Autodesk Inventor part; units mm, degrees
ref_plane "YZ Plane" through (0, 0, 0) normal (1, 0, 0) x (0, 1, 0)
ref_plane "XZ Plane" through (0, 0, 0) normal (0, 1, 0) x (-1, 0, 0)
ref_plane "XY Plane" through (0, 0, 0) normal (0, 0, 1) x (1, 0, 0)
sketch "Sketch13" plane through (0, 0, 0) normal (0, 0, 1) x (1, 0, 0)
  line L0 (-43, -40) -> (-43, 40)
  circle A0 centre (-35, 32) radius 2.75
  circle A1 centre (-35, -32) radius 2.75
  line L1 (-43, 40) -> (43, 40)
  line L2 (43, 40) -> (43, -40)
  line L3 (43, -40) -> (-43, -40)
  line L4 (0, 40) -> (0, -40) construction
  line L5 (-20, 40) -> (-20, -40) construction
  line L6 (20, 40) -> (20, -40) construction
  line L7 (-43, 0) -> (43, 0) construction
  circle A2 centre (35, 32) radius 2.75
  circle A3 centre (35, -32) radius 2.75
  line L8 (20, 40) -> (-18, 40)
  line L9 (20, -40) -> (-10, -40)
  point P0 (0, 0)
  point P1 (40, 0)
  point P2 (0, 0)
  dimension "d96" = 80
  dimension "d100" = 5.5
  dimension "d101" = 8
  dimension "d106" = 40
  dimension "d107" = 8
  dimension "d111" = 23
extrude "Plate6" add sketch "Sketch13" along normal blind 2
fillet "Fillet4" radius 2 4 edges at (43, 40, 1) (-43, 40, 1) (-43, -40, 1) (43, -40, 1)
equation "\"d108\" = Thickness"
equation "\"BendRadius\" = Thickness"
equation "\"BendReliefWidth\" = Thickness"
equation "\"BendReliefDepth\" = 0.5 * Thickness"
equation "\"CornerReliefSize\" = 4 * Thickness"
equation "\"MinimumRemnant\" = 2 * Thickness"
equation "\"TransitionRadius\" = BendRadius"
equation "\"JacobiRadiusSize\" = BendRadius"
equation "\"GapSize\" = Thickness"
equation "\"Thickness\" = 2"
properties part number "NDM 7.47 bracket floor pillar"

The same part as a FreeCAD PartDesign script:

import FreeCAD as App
import Part
import Sketcher
Q = App.Units.Quantity


def edges_at(feature, points):
    """Names of the edges that pass closest to the given points."""
    edges = feature.Shape.Edges
    near = lambda p: min(range(len(edges)), key=lambda i: edges[i].distToShape(Part.Vertex(*p))[0])
    return sorted({f"Edge{near(p) + 1}" for p in points})

doc = App.newDocument("Part")
body = doc.addObject("PartDesign::Body", "Body")

sketch1 = body.newObject("Sketcher::SketchObject", "Sketch")
sketch1.AttachmentSupport = (doc.getObject("XY_Plane"), [""])
sketch1.MapMode = "FlatFace"
sketch1.addGeometry(Part.LineSegment(App.Vector(-43, 40, 0), App.Vector(-43, -40, 0)), False)
sketch1.addGeometry(Part.LineSegment(App.Vector(-43, -40, 0), App.Vector(43, -40, 0)), False)
sketch1.addGeometry(Part.LineSegment(App.Vector(43, -40, 0), App.Vector(43, 40, 0)), False)
sketch1.addGeometry(Part.LineSegment(App.Vector(43, 40, 0), App.Vector(-43, 40, 0)), False)
sketch1.addGeometry(Part.Circle(App.Vector(-35, -32, 0), App.Vector(0, 0, 1), 2.8), False)
sketch1.addGeometry(Part.Circle(App.Vector(35, -32, 0), App.Vector(0, 0, 1), 2.8), False)
sketch1.addGeometry(Part.Circle(App.Vector(-35, 32, 0), App.Vector(0, 0, 1), 2.8), False)
sketch1.addGeometry(Part.Circle(App.Vector(35, 32, 0), App.Vector(0, 0, 1), 2.8), False)
sketch1.addConstraint(Sketcher.Constraint("Coincident", 0, 2, 1, 1))
sketch1.addConstraint(Sketcher.Constraint("Coincident", 1, 2, 2, 1))
sketch1.addConstraint(Sketcher.Constraint("Coincident", 2, 2, 3, 1))
sketch1.addConstraint(Sketcher.Constraint("Coincident", 3, 2, 0, 1))
sketch1.addConstraint(Sketcher.Constraint("Vertical", 0))
sketch1.addConstraint(Sketcher.Constraint("Horizontal", 1))
sketch1.addConstraint(Sketcher.Constraint("Vertical", 2))
sketch1.addConstraint(Sketcher.Constraint("Horizontal", 3))
sketch1.addConstraint(Sketcher.Constraint("Equal", 4, 5))
sketch1.addConstraint(Sketcher.Constraint("Equal", 5, 6))
sketch1.addConstraint(Sketcher.Constraint("Equal", 6, 7))
sketch1.addConstraint(Sketcher.Constraint("Symmetric", 5, 3, 6, 3, -1, 1))
sketch1.addConstraint(Sketcher.Constraint("Symmetric", 4, 3, 7, 3, -1, 1))
sketch1.addConstraint(Sketcher.Constraint("Symmetric", 0, 2, 2, 2, -1, 1))
sketch1.addConstraint(Sketcher.Constraint("Symmetric", 4, 3, 5, 3, -2))
sketch1.addConstraint(Sketcher.Constraint("Diameter", 4, Q("5.5 mm")))
sketch1.addConstraint(Sketcher.Constraint("DistanceY", 0, 2, 0, 1, Q("80 mm")))
sketch1.addConstraint(Sketcher.Constraint("DistanceX", 0, 2, 4, 3, Q("8 mm")))
sketch1.addConstraint(Sketcher.Constraint("DistanceY", 0, 2, 4, 3, Q("8 mm")))
sketch1.addConstraint(Sketcher.Constraint("DistanceX", 1, 1, 1, 2, Q("86 mm")))
pad1 = body.newObject("PartDesign::Pad", "Pad")
pad1.Profile = sketch1
pad1.Length = 2
doc.recompute()

fillet = body.newObject("PartDesign::Fillet", "Fillet")
fillet.Base = (pad1, edges_at(pad1, [
    (43, 40, 1),
    (-43, 40, 1),
    (-43, -40, 1),
    (43, -40, 1),
]))
fillet.Radius = 2

doc.recompute()
